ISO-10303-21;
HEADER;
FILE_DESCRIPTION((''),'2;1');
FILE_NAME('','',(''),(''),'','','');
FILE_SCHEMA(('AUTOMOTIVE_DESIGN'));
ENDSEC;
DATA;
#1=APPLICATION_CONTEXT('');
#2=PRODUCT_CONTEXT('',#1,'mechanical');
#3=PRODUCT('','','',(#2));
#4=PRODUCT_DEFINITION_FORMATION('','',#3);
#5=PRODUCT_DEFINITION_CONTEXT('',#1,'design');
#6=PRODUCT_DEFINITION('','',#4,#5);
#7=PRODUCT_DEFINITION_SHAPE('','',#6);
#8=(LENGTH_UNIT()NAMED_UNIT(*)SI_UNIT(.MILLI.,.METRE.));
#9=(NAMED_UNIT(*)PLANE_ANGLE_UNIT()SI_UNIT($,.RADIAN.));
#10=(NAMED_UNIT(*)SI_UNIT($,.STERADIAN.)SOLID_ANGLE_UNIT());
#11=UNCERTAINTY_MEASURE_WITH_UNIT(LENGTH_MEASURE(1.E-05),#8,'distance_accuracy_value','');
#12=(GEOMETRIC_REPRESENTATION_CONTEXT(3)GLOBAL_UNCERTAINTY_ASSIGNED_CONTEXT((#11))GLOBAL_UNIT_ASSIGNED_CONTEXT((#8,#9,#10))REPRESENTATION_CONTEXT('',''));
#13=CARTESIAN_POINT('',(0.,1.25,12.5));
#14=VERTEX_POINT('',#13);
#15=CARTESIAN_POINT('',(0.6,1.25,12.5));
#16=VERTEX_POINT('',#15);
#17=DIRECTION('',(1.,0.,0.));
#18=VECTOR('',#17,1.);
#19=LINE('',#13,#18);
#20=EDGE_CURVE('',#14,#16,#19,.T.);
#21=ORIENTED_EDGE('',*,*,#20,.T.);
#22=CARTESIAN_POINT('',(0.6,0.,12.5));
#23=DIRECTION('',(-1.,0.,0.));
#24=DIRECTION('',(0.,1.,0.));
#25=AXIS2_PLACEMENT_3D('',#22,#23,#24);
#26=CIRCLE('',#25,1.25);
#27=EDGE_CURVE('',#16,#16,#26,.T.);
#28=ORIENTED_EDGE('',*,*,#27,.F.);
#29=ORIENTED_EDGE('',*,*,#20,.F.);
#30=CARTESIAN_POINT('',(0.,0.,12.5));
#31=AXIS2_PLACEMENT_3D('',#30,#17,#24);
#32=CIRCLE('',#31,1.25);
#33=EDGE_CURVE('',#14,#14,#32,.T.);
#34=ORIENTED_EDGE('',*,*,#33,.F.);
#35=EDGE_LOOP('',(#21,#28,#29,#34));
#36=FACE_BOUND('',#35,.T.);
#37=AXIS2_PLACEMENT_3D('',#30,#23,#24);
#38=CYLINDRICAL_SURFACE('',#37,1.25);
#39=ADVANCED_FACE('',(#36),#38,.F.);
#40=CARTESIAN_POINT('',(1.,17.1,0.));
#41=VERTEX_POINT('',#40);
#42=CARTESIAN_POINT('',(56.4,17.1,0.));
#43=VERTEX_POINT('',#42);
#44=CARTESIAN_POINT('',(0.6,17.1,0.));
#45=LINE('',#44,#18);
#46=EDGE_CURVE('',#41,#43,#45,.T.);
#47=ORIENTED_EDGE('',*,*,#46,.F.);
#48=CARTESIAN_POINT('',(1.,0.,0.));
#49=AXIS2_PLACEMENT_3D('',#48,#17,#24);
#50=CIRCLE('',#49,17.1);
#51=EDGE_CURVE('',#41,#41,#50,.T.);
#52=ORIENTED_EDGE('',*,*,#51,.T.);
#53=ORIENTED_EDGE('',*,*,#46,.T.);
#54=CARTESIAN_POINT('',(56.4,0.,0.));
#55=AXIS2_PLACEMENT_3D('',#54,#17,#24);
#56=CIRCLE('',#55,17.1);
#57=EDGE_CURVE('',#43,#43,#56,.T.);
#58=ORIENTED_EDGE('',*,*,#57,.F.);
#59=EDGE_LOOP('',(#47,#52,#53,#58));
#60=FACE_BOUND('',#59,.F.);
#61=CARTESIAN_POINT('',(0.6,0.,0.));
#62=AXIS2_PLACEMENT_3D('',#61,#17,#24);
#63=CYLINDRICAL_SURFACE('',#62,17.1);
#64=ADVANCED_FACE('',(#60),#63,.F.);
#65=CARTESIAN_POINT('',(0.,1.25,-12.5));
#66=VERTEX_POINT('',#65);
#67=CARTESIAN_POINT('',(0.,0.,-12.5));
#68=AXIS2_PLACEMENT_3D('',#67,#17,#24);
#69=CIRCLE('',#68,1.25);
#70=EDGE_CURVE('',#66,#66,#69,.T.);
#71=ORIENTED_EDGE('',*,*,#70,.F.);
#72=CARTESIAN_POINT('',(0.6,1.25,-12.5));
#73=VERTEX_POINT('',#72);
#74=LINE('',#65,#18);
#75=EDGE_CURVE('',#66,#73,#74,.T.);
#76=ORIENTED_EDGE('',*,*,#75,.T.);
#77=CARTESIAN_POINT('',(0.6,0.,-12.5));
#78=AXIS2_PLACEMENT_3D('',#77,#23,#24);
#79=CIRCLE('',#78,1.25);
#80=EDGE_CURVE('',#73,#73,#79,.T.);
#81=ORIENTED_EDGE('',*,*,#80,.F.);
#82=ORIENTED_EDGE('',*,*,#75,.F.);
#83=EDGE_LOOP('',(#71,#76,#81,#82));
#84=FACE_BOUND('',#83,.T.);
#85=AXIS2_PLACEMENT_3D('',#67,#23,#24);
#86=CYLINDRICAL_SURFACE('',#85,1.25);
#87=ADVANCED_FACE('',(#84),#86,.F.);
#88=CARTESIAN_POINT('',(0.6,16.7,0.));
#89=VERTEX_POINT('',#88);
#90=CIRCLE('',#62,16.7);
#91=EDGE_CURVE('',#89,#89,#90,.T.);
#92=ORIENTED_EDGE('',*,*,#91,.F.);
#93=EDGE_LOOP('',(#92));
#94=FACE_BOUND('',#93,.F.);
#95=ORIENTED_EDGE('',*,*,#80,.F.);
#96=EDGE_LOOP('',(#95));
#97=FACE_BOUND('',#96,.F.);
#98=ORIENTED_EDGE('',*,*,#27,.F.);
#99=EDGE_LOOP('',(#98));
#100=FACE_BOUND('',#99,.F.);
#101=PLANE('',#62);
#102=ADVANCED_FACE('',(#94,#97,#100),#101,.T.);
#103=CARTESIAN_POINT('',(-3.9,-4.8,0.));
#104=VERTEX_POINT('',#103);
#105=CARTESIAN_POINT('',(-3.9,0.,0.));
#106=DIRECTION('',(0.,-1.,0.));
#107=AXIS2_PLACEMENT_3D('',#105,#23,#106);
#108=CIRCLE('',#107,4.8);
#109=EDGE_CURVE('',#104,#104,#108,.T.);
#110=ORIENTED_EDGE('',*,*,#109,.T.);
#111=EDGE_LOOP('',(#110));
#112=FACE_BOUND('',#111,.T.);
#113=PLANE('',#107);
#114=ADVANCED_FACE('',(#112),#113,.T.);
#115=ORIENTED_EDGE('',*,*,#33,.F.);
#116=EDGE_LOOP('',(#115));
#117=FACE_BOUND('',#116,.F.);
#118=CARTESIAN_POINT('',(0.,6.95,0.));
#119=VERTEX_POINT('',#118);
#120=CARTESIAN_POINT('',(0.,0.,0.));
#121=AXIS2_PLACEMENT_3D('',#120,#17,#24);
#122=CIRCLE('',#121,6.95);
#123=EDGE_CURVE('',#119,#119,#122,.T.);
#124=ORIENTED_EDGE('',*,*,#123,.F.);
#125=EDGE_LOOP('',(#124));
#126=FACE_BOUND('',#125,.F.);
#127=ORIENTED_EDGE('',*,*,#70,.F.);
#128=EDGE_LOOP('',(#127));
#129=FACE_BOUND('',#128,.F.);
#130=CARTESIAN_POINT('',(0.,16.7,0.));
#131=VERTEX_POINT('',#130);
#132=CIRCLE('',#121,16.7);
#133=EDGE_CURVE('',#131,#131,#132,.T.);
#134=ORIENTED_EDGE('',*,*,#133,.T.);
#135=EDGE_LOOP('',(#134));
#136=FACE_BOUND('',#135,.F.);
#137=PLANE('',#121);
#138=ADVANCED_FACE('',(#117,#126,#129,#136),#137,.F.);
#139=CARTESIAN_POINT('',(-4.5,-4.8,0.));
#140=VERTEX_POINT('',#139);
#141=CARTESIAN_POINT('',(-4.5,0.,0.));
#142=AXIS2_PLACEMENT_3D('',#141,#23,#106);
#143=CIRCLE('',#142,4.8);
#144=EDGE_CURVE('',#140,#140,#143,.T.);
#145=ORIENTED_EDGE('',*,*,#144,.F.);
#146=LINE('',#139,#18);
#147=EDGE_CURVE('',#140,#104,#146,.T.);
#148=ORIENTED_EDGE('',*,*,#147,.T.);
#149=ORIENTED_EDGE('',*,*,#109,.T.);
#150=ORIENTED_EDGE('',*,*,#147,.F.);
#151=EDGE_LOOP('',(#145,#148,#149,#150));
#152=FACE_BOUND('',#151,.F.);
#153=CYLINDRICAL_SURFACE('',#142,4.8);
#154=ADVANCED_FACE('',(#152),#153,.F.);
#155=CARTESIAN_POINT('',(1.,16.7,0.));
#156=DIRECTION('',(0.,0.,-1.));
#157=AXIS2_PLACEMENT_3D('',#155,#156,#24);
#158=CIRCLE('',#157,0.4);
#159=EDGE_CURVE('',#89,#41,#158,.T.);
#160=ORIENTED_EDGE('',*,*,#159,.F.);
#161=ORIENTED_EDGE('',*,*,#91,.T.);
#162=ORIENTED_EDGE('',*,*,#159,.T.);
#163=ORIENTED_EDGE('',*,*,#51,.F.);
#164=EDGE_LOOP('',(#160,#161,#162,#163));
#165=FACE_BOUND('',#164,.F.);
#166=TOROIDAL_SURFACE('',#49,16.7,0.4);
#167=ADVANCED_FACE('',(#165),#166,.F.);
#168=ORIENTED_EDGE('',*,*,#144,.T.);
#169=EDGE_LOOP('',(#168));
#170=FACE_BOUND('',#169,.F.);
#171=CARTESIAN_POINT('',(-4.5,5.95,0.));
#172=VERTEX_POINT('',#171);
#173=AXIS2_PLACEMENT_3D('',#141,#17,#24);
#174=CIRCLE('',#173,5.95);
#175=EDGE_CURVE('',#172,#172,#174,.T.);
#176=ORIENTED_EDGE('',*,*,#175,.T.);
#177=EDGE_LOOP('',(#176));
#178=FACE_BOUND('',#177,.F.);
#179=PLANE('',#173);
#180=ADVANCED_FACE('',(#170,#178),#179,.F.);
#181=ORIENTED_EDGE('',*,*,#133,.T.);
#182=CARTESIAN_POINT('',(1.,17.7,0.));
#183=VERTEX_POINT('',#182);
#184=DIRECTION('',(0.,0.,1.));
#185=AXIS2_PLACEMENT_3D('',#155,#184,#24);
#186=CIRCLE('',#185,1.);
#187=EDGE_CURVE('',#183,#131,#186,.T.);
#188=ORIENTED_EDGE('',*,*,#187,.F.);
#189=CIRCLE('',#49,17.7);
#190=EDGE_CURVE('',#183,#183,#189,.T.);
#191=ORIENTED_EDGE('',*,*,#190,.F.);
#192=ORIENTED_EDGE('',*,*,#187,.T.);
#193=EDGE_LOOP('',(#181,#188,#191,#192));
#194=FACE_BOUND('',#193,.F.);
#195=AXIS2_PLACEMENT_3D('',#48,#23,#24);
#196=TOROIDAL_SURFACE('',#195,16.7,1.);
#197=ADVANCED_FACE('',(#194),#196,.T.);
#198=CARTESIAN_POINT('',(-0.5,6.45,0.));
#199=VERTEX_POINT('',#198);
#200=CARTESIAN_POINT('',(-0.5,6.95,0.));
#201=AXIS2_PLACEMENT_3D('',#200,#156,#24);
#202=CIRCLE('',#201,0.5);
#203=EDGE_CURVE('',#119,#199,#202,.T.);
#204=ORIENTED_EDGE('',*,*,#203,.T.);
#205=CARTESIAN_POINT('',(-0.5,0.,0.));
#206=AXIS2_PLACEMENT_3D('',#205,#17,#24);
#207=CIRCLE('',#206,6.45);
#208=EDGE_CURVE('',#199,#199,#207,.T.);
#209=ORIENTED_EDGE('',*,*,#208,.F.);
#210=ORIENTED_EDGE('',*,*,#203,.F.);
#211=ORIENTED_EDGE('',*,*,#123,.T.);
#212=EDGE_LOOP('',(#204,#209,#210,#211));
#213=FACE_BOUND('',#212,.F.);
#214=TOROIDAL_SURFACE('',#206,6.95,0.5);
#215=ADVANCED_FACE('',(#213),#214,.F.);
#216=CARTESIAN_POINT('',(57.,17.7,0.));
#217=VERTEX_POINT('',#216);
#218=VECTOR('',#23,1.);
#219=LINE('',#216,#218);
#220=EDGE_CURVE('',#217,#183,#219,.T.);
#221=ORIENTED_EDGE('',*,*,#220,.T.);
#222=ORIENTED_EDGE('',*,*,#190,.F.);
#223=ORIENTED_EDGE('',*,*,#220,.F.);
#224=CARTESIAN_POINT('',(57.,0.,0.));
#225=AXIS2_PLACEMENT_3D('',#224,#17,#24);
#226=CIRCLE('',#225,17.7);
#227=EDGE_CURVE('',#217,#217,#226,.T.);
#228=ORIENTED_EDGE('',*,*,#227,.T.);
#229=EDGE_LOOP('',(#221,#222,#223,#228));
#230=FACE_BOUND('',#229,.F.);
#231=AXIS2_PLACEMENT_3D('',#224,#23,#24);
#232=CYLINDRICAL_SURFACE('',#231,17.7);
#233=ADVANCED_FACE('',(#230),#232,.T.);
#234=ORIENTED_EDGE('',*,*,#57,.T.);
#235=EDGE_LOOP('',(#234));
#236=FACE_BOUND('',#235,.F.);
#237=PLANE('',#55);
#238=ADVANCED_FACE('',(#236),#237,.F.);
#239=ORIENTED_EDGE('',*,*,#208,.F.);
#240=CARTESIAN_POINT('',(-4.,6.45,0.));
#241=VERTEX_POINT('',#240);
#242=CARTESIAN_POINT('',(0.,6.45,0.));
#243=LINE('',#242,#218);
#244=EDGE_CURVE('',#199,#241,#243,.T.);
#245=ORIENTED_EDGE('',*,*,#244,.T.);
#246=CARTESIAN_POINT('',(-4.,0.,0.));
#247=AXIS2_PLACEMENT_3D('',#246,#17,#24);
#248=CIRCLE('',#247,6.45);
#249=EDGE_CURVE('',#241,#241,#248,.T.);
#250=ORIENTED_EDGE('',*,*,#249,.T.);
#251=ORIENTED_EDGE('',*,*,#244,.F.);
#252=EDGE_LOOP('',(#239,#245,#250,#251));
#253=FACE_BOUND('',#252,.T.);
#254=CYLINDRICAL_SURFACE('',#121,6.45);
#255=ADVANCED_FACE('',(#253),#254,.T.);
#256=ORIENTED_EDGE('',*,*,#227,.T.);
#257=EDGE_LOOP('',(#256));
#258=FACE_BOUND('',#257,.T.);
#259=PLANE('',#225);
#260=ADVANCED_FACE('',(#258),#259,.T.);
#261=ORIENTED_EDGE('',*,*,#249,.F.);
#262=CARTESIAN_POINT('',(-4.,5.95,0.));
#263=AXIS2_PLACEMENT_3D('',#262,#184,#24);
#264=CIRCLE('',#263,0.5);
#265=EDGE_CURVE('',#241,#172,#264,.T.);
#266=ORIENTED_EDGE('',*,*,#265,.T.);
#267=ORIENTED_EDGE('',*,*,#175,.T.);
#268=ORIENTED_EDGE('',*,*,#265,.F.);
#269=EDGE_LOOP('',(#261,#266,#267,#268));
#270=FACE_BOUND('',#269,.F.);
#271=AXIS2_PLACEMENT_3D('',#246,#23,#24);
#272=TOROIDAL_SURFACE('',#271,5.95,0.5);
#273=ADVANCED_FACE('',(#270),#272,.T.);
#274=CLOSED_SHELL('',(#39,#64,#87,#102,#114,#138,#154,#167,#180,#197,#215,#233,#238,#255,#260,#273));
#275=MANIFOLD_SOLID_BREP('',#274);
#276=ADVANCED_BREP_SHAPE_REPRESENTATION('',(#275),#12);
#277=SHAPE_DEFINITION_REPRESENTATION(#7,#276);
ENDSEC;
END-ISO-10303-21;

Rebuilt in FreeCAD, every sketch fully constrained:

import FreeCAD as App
import Part
import Sketcher

V = App.Vector


def edges_at(feature, points):
    """Names of the edges that pass closest to the given points."""
    edges = feature.Shape.Edges
    near = lambda p: min(range(len(edges)), key=lambda i: edges[i].distToShape(Part.Vertex(*p))[0])
    return sorted({f"Edge{near(p) + 1}" for p in points})


def add_polygon(sketch, points):
    """Adds a closed chain of lines whose ends are joined by coincident constraints."""
    first, n = sketch.GeometryCount, len(points)
    for a, b in zip(points, points[1:] + points[:1]):
        sketch.addGeometry(Part.LineSegment(App.Vector(*a, 0), App.Vector(*b, 0)), False)
    for i in range(n):
        sketch.addConstraint(Sketcher.Constraint("Coincident", first + i, 2, first + (i + 1) % n, 1))

doc = App.newDocument("Part")
body = doc.addObject("PartDesign::Body", "Body")

# Sketch on XY plane
sketch1 = body.newObject("Sketcher::SketchObject", "Sketch")
sketch1.AttachmentSupport = (doc.getObject("XY_Plane"), [""])
sketch1.MapMode = "FlatFace"
add_polygon(sketch1, [(0, 0), (0.6, 0), (0.6, 17.1), (57, 17.1), (57, 17.7), (0, 17.7)])  # lines 0-5
sketch1.addConstraint(Sketcher.Constraint("Horizontal", 0))
sketch1.addConstraint(Sketcher.Constraint("Vertical", 1))
sketch1.addConstraint(Sketcher.Constraint("Horizontal", 2))
sketch1.addConstraint(Sketcher.Constraint("Vertical", 3))
sketch1.addConstraint(Sketcher.Constraint("Horizontal", 4))
sketch1.addConstraint(Sketcher.Constraint("Vertical", 5))
sketch1.addConstraint(Sketcher.Constraint("Coincident", 5, 2, -1, 1))
sketch1.addConstraint(Sketcher.Constraint("Equal", 0, 3))
sketch1.addConstraint(Sketcher.Constraint("DistanceX", 4, 2, 4, 1, 57.0))
sketch1.addConstraint(Sketcher.Constraint("DistanceX", 0, 1, 0, 2, 0.6))
sketch1.addConstraint(Sketcher.Constraint("DistanceY", 1, 1, 1, 2, 17.1))
revolution = body.newObject("PartDesign::Revolution", "Revolution")
revolution.Profile = sketch1
revolution.ReferenceAxis = (sketch1, ["H_Axis"])
revolution.Angle = 360
doc.recompute()

fillet = body.newObject("PartDesign::Fillet", "Fillet")
fillet.Base = (revolution, edges_at(revolution, [(0.6, -17.1, 0)]))
fillet.Radius = 0.4
doc.recompute()

fillet2 = body.newObject("PartDesign::Fillet", "Fillet001")
fillet2.Base = (fillet, edges_at(fillet, [(0, -17.7, 0)]))
fillet2.Radius = 1

# Sketch on YZ plane
sketch2 = body.newObject("Sketcher::SketchObject", "Sketch001")
sketch2.AttachmentSupport = (doc.getObject("YZ_Plane"), [""])
sketch2.MapMode = "FlatFace"
sketch2.addGeometry(Part.Circle(V(0, 0, 0), V(0, 0, 1), 6.45), False)
sketch2.addConstraint(Sketcher.Constraint("Coincident", 0, 3, -1, 1))
sketch2.addConstraint(Sketcher.Constraint("Diameter", 0, 12.9))
pad1 = body.newObject("PartDesign::Pad", "Pad")
pad1.Profile = sketch2
pad1.Length = 4.5
pad1.Reversed = True
doc.recompute()

fillet3 = body.newObject("PartDesign::Fillet", "Fillet002")
fillet3.Base = (pad1, edges_at(pad1, [(0, -6.45, 0), (-4.5, -6.45, 0)]))
fillet3.Radius = 0.5

# Sketch on YZ plane
sketch3 = body.newObject("Sketcher::SketchObject", "Sketch002")
sketch3.AttachmentSupport = (doc.getObject("YZ_Plane"), [""])
sketch3.MapMode = "FlatFace"
sketch3.AttachmentOffset = App.Placement(V(0, 0, -4.5), App.Rotation())
sketch3.addGeometry(Part.Circle(V(0, 0, 0), V(0, 0, 1), 4.8), False)
sketch3.addConstraint(Sketcher.Constraint("Coincident", 0, 3, -1, 1))
sketch3.addConstraint(Sketcher.Constraint("Diameter", 0, 9.6))
pocket1 = body.newObject("PartDesign::Pocket", "Pocket")
pocket1.Profile = sketch3
pocket1.Length = 0.6
pocket1.Reversed = True

# Sketch on YZ plane
sketch4 = body.newObject("Sketcher::SketchObject", "Sketch003")
sketch4.AttachmentSupport = (doc.getObject("YZ_Plane"), [""])
sketch4.MapMode = "FlatFace"
sketch4.addGeometry(Part.Circle(V(0, -12.5, 0), V(0, 0, 1), 1.25), False)
sketch4.addGeometry(Part.Circle(V(0, 12.5, 0), V(0, 0, 1), 1.25), False)
sketch4.addConstraint(Sketcher.Constraint("Equal", 0, 1))
sketch4.addConstraint(Sketcher.Constraint("Symmetric", 0, 3, 1, 3, -1, 1))
sketch4.addConstraint(Sketcher.Constraint("PointOnObject", 0, 3, -2))
sketch4.addConstraint(Sketcher.Constraint("Diameter", 0, 2.5))
sketch4.addConstraint(Sketcher.Constraint("DistanceY", 0, 3, 1, 3, 25.0))
pocket2 = body.newObject("PartDesign::Pocket", "Pocket001")
pocket2.Profile = sketch4
pocket2.Length = 25
pocket2.Reversed = True

# Sketch on YZ plane
sketch5 = body.newObject("Sketcher::SketchObject", "Sketch004")
sketch5.AttachmentSupport = (doc.getObject("YZ_Plane"), [""])
sketch5.MapMode = "FlatFace"
sketch5.AttachmentOffset = App.Placement(V(0, 0, 57), App.Rotation())
sketch5.addGeometry(Part.Circle(V(0, 0, 0), V(0, 0, 1), 17.1), False)
sketch5.addConstraint(Sketcher.Constraint("Coincident", 0, 3, -1, 1))
sketch5.addConstraint(Sketcher.Constraint("Diameter", 0, 34.2))
pad2 = body.newObject("PartDesign::Pad", "Pad001")
pad2.Profile = sketch5
pad2.Length = 0.6
pad2.Reversed = True

doc.recompute()
